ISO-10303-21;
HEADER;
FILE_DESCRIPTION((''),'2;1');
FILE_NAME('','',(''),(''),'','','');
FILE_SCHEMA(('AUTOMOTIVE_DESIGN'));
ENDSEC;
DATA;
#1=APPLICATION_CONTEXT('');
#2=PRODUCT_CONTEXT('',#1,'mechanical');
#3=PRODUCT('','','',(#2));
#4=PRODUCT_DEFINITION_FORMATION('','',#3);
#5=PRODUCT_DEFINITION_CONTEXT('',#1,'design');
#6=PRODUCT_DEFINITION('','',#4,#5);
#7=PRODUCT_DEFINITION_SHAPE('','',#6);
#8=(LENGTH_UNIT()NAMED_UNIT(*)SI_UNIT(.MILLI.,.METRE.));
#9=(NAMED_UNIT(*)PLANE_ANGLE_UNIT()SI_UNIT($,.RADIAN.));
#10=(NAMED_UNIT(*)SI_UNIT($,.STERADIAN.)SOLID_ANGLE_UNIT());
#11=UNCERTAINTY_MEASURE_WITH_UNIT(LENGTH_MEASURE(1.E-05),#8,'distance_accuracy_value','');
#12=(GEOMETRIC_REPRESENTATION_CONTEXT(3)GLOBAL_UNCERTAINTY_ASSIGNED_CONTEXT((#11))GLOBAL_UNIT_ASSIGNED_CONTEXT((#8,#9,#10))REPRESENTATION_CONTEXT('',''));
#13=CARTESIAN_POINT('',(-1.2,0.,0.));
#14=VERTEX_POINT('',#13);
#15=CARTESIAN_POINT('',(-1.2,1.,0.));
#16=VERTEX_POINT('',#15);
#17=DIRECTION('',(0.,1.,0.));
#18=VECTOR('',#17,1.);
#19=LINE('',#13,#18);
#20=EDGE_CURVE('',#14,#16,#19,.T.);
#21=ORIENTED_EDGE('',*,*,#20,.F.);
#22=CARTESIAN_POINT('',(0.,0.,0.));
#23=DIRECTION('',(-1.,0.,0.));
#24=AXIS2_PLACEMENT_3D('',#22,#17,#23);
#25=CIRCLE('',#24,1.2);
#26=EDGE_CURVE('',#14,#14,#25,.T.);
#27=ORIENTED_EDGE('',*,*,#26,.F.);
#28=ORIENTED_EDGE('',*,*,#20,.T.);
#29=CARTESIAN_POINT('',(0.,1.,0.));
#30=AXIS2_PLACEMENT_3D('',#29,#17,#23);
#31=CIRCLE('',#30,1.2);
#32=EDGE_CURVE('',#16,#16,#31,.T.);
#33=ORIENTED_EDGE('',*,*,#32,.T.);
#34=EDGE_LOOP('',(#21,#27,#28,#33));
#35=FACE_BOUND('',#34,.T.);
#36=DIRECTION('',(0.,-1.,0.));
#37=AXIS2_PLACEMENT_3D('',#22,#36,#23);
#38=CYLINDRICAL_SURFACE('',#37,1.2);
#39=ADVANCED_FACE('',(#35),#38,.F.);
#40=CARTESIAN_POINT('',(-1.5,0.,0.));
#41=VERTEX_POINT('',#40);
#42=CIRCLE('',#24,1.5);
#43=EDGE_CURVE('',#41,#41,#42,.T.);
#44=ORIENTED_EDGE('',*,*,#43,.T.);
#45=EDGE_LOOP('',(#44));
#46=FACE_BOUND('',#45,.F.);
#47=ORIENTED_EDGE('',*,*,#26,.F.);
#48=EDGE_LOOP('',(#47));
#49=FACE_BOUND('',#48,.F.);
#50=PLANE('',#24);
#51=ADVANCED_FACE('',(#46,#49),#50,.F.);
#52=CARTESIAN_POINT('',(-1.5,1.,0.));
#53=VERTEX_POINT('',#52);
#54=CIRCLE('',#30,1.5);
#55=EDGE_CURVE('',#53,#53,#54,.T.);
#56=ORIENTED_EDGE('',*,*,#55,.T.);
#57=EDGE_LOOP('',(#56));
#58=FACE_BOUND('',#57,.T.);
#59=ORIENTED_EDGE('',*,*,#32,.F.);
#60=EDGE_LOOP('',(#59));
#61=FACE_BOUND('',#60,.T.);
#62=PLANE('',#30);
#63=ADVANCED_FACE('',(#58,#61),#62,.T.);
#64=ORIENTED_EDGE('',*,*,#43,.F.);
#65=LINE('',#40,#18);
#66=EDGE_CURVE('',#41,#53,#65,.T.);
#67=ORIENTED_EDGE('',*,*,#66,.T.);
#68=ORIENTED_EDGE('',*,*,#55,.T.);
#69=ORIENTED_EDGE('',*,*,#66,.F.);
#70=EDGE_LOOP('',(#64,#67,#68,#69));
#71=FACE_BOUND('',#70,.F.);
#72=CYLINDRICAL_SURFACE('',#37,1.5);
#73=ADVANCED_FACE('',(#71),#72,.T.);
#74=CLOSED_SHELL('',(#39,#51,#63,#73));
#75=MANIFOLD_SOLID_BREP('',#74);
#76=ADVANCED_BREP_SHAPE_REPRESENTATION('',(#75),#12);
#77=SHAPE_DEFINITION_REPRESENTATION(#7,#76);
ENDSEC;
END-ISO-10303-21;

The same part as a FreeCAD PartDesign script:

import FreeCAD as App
import Part
import Sketcher

doc = App.newDocument("Part")
body = doc.addObject("PartDesign::Body", "Body")

# Sketch on XZ plane
sketch1 = body.newObject("Sketcher::SketchObject", "Sketch")
sketch1.AttachmentSupport = (doc.getObject("XZ_Plane"), [""])
sketch1.MapMode = "FlatFace"
sketch1.addGeometry([
    Part.Circle(App.Vector(0, 0, 0), App.Vector(0, 0, 1), 1.5),
    Part.Circle(App.Vector(0, 0, 0), App.Vector(0, 0, 1), 1.2),
], False)
sketch1.addConstraint([
    Sketcher.Constraint("Coincident", 0, 3, -1, 1),
    Sketcher.Constraint("Coincident", 1, 3, -1, 1),
    Sketcher.Constraint("Diameter", 0, 3.0),
    Sketcher.Constraint("Diameter", 1, 2.4),
])
pad1 = body.newObject("PartDesign::Pad", "Pad")
pad1.Profile = sketch1
pad1.Length = 1
pad1.Reversed = True

doc.recompute()
